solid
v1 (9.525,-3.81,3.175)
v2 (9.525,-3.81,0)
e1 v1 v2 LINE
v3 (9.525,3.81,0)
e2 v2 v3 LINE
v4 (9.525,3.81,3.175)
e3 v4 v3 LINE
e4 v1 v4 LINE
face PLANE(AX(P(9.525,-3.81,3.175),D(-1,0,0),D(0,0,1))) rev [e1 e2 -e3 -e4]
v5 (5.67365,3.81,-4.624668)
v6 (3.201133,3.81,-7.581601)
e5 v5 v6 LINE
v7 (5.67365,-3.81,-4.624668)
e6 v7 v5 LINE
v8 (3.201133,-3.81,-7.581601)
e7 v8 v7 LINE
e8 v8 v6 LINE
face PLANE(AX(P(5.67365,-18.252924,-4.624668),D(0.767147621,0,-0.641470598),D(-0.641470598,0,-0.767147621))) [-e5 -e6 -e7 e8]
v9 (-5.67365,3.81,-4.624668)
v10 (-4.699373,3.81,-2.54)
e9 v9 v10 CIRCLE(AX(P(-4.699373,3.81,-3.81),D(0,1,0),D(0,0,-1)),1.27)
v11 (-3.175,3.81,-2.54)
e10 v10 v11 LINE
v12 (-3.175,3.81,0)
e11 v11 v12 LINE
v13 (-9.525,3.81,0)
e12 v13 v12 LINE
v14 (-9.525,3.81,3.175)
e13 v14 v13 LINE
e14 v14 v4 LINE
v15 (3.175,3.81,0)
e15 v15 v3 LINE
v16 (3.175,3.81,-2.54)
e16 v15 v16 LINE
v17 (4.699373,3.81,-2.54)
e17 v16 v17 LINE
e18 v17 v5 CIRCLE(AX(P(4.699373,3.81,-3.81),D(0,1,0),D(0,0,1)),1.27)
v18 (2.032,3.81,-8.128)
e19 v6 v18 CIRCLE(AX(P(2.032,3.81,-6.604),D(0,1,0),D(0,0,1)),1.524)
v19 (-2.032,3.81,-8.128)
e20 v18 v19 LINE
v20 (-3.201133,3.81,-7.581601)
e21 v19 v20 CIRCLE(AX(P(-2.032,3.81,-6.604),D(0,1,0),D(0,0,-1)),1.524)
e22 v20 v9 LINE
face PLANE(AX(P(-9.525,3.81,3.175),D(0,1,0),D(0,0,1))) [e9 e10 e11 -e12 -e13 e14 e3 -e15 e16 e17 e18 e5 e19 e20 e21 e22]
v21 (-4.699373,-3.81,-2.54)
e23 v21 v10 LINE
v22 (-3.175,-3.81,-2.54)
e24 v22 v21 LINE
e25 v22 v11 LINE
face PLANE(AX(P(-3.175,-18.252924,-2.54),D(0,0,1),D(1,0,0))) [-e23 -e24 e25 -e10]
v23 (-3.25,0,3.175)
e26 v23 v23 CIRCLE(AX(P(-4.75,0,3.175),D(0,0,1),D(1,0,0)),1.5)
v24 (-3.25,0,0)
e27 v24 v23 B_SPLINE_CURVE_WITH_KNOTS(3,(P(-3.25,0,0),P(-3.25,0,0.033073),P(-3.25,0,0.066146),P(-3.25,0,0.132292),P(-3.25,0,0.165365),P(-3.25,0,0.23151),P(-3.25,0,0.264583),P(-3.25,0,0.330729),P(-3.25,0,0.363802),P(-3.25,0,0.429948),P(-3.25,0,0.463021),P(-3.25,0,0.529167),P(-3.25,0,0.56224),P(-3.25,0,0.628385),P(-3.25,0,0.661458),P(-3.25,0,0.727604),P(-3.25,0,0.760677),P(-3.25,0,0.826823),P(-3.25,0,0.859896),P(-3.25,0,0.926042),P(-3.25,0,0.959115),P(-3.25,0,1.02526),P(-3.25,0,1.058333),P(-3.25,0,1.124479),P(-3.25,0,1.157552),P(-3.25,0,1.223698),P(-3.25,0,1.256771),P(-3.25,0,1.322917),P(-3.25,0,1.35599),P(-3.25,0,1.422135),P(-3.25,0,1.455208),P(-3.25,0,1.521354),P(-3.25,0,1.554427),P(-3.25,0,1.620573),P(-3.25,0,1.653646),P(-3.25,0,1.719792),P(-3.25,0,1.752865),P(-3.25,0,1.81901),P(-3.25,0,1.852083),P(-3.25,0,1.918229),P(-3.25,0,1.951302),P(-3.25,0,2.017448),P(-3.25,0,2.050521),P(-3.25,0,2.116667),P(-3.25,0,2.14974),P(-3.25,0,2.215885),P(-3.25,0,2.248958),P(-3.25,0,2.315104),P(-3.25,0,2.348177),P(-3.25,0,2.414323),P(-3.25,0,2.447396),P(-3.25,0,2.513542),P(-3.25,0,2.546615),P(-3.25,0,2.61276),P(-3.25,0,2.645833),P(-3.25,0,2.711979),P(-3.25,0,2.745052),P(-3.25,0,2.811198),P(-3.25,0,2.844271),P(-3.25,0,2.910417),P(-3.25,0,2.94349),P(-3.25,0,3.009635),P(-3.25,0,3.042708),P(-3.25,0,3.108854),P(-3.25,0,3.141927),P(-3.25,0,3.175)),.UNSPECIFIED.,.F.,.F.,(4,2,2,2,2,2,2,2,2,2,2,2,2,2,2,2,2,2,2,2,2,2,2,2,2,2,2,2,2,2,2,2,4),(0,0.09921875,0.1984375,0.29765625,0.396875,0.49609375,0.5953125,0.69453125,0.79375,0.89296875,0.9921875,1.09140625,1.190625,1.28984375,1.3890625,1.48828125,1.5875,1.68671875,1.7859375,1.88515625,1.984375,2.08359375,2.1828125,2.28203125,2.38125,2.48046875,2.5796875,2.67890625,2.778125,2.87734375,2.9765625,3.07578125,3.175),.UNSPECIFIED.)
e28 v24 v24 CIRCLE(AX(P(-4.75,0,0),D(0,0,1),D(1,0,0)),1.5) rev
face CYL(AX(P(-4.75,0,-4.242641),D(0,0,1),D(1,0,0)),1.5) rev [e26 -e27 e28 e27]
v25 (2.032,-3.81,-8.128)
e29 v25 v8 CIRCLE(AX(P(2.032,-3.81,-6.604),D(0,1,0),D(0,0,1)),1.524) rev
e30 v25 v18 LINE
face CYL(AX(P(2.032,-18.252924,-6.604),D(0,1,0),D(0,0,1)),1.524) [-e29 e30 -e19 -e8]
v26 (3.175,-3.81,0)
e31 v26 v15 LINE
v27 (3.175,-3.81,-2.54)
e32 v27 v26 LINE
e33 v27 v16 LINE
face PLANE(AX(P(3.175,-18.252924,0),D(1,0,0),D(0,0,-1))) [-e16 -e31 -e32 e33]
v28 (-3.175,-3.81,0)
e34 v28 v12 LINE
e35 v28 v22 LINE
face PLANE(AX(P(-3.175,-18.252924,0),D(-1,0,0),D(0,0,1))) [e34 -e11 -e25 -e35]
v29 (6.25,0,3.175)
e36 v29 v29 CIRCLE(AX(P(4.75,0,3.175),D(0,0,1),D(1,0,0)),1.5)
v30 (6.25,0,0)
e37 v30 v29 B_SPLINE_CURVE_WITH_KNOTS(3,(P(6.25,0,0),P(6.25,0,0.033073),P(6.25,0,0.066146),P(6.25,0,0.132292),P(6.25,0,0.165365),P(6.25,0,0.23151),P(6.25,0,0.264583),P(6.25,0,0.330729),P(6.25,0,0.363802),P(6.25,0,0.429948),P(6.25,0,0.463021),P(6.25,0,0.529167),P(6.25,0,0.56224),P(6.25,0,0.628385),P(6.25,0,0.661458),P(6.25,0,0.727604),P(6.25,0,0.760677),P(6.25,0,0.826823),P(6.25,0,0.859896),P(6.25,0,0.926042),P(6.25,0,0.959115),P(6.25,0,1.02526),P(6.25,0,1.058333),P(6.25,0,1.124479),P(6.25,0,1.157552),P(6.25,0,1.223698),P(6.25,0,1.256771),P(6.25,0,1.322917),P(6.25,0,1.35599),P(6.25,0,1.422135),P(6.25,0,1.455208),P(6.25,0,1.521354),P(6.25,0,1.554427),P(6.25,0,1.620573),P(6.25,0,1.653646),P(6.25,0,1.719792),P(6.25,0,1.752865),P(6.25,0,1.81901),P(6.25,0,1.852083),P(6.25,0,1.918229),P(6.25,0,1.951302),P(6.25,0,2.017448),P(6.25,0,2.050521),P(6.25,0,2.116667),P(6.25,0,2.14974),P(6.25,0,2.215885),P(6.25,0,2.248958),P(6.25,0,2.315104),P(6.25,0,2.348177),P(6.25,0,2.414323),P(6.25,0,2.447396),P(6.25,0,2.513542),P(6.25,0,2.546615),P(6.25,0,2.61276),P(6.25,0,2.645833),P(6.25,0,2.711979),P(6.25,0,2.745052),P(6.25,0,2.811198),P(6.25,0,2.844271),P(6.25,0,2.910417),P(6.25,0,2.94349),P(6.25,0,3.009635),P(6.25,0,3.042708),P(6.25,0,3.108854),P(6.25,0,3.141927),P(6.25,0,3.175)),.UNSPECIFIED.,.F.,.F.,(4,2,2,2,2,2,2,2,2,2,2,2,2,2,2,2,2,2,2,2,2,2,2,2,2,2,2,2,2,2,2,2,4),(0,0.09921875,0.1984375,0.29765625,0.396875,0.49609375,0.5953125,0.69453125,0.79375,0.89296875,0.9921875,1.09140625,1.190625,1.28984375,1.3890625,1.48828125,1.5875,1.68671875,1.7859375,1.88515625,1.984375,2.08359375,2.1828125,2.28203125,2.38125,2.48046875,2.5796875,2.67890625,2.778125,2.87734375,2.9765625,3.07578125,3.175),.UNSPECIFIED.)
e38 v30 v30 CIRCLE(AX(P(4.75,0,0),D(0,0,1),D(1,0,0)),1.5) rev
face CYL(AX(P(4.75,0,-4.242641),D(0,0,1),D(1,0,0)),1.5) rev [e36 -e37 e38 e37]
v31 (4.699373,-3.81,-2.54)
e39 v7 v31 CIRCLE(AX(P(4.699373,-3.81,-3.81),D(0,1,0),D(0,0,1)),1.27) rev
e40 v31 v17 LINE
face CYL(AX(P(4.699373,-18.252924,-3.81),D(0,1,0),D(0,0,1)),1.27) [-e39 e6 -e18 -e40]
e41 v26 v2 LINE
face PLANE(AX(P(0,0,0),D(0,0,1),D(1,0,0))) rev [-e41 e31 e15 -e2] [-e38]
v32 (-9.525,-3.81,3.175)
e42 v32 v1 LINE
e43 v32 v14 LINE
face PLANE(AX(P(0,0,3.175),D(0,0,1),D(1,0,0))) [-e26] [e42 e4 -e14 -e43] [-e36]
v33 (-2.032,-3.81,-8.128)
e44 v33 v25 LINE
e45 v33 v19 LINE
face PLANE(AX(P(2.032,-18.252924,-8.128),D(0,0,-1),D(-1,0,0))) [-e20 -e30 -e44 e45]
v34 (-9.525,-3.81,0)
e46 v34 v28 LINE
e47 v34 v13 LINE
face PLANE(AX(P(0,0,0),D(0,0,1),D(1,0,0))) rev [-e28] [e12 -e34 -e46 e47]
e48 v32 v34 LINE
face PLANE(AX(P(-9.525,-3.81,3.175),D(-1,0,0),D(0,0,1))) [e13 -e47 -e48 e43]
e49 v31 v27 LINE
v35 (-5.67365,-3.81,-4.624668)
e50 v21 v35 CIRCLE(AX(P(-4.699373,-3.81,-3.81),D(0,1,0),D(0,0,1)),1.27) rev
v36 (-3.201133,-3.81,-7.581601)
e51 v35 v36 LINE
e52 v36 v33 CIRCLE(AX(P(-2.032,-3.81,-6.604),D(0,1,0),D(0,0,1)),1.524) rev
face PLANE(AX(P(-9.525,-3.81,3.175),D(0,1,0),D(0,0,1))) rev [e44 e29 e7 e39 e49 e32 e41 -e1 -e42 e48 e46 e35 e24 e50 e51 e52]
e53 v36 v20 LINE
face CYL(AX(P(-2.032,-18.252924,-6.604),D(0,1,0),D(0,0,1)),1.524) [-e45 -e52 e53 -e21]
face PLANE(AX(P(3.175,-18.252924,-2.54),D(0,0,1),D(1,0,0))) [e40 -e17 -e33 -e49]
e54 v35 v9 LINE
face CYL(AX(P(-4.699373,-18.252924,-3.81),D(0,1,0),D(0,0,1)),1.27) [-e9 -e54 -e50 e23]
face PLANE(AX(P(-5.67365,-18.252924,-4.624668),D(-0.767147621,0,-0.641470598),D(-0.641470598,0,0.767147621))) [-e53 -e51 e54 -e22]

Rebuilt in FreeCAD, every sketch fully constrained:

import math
import FreeCAD as App
import Part
import Sketcher

V = App.Vector
Q = App.Units.Quantity


def add_polygon(sketch, points):
    """Adds a closed chain of lines whose ends are joined by coincident constraints."""
    first, n = sketch.GeometryCount, len(points)
    for a, b in zip(points, points[1:] + points[:1]):
        sketch.addGeometry(Part.LineSegment(App.Vector(*a, 0), App.Vector(*b, 0)), False)
    for i in range(n):
        sketch.addConstraint(Sketcher.Constraint("Coincident", first + i, 2, first + (i + 1) % n, 1))

doc = App.newDocument("Part")
body = doc.addObject("PartDesign::Body", "Body")

sketch1 = body.newObject("Sketcher::SketchObject", "Sketch")
sketch1.AttachmentSupport = (doc.getObject("XY_Plane"), [""])
sketch1.MapMode = "FlatFace"
add_polygon(sketch1, [(-10, 4), (-10, -4), (10, -4), (10, 4)])
sketch1.addConstraint(Sketcher.Constraint("Vertical", 0))
sketch1.addConstraint(Sketcher.Constraint("Horizontal", 1))
sketch1.addConstraint(Sketcher.Constraint("Vertical", 2))
sketch1.addConstraint(Sketcher.Constraint("Horizontal", 3))
sketch1.addConstraint(Sketcher.Constraint("Symmetric", 0, 2, 2, 2, -1, 1))
sketch1.addConstraint(Sketcher.Constraint("DistanceY", 0, 2, 0, 1, Q("0.3 in")))
sketch1.addConstraint(Sketcher.Constraint("DistanceX", 1, 1, 1, 2, Q("0.75 in")))
pad1 = body.newObject("PartDesign::Pad", "Pad")
pad1.Profile = sketch1
pad1.Length = Q("0.125 in")

sketch2 = body.newObject("Sketcher::SketchObject", "Sketch001")
sketch2.AttachmentSupport = (doc.getObject("XZ_Plane"), [""])
sketch2.MapMode = "FlatFace"
sketch2.AttachmentOffset = App.Placement(V(0, 0, -0.15 * 25.4), App.Rotation())
sketch2.addGeometry(Part.LineSegment(V(3.2, 0, 0), V(3.2, -2.5, 0)), False)
sketch2.addGeometry(Part.LineSegment(V(3.2, -2.5, 0), V(4.7, -2.5, 0)), False)
sketch2.addGeometry(Part.ArcOfCircle(Part.Circle(V(4.7, -3.8, 0), V(0, 0, 1), 1.3), math.radians(-40), math.radians(90)), False)
sketch2.addGeometry(Part.LineSegment(V(5.7, -4.6, 0), V(3.2, -7.6, 0)), False)
sketch2.addGeometry(Part.ArcOfCircle(Part.Circle(V(2, -6.6, 0), V(0, 0, 1), 1.5), math.radians(-90), math.radians(-40)), False)
sketch2.addGeometry(Part.LineSegment(V(2, -8.1, 0), V(-2, -8.1, 0)), False)
sketch2.addGeometry(Part.ArcOfCircle(Part.Circle(V(-2, -6.6, 0), V(0, 0, 1), 1.5), math.radians(-140), math.radians(-90)), False)
sketch2.addGeometry(Part.LineSegment(V(-3.2, -7.6, 0), V(-5.7, -4.6, 0)), False)
sketch2.addGeometry(Part.ArcOfCircle(Part.Circle(V(-4.7, -3.8, 0), V(0, 0, 1), 1.3), math.radians(90), math.radians(220)), False)
sketch2.addGeometry(Part.LineSegment(V(-4.7, -2.5, 0), V(-3.2, -2.5, 0)), False)
sketch2.addGeometry(Part.LineSegment(V(-3.2, -2.5, 0), V(-3.2, 0, 0)), False)
sketch2.addGeometry(Part.LineSegment(V(-3.2, 0, 0), V(3.2, 0, 0)), False)
sketch2.addConstraint(Sketcher.Constraint("Coincident", 0, 2, 1, 1))
sketch2.addConstraint(Sketcher.Constraint("Tangent", 1, 2, 2, 2))
sketch2.addConstraint(Sketcher.Constraint("Tangent", 2, 1, 3, 1))
sketch2.addConstraint(Sketcher.Constraint("Tangent", 3, 2, 4, 2))
sketch2.addConstraint(Sketcher.Constraint("Tangent", 4, 1, 5, 1))
sketch2.addConstraint(Sketcher.Constraint("Tangent", 5, 2, 6, 2))
sketch2.addConstraint(Sketcher.Constraint("Tangent", 6, 1, 7, 1))
sketch2.addConstraint(Sketcher.Constraint("Tangent", 7, 2, 8, 2))
sketch2.addConstraint(Sketcher.Constraint("Tangent", 8, 1, 9, 1))
sketch2.addConstraint(Sketcher.Constraint("Coincident", 9, 2, 10, 1))
sketch2.addConstraint(Sketcher.Constraint("Coincident", 10, 2, 11, 1))
sketch2.addConstraint(Sketcher.Constraint("Coincident", 11, 2, 0, 1))
sketch2.addConstraint(Sketcher.Constraint("Vertical", 0))
sketch2.addConstraint(Sketcher.Constraint("Horizontal", 1))
sketch2.addConstraint(Sketcher.Constraint("Horizontal", 5))
sketch2.addConstraint(Sketcher.Constraint("Horizontal", 9))
sketch2.addConstraint(Sketcher.Constraint("Vertical", 10))
sketch2.addConstraint(Sketcher.Constraint("Horizontal", 11))
sketch2.addConstraint(Sketcher.Constraint("Equal", 4, 6))
sketch2.addConstraint(Sketcher.Constraint("Equal", 2, 8))
sketch2.addConstraint(Sketcher.Constraint("Symmetric", 10, 2, 11, 2, -1, 1))
sketch2.addConstraint(Sketcher.Constraint("Symmetric", 2, 3, 8, 3, -2))
sketch2.addConstraint(Sketcher.Constraint("Horizontal", 3, 2, 6, 1))
sketch2.addConstraint(Sketcher.Constraint("Radius", 2, Q("0.05 in")))
sketch2.addConstraint(Sketcher.Constraint("Radius", 4, Q("0.06 in")))
sketch2.addConstraint(Sketcher.Constraint("DistanceY", 0, 2, 0, 1, Q("0.1 in")))
sketch2.addConstraint(Sketcher.Constraint("DistanceX", 5, 2, 5, 1, Q("0.16 in")))
sketch2.addConstraint(Sketcher.Constraint("DistanceX", 11, 1, 11, 2, Q("0.25 in")))
sketch2.addConstraint(Sketcher.Constraint("DistanceY", 4, 3, -1, 1, Q("0.26 in")))
sketch2.addConstraint(Sketcher.Constraint("DistanceY", 3, 2, -1, 1, 7.581601))
pad2 = body.newObject("PartDesign::Pad", "Pad001")
pad2.Profile = sketch2
pad2.Length = Q("0.3 in")

sketch3 = body.newObject("Sketcher::SketchObject", "Sketch002")
sketch3.AttachmentSupport = (doc.getObject("XY_Plane"), [""])
sketch3.MapMode = "FlatFace"
sketch3.AttachmentOffset = App.Placement(V(0, 0, 0.125 * 25.4), App.Rotation())
sketch3.addGeometry(Part.Circle(V(-4.8, 0, 0), V(0, 0, 1), 1.5), False)
sketch3.addGeometry(Part.Circle(V(4.8, 0, 0), V(0, 0, 1), 1.5), False)
sketch3.addConstraint(Sketcher.Constraint("Equal", 0, 1))
sketch3.addConstraint(Sketcher.Constraint("Symmetric", 0, 3, 1, 3, -1, 1))
sketch3.addConstraint(Sketcher.Constraint("PointOnObject", 0, 3, -1))
sketch3.addConstraint(Sketcher.Constraint("Diameter", 0, 3.0))
sketch3.addConstraint(Sketcher.Constraint("DistanceX", 0, 3, -1, 1, 4.75))
pocket1 = body.newObject("PartDesign::Pocket", "Pocket")
pocket1.Profile = sketch3
pocket1.Length = Q("0.125 in")

doc.recompute()
